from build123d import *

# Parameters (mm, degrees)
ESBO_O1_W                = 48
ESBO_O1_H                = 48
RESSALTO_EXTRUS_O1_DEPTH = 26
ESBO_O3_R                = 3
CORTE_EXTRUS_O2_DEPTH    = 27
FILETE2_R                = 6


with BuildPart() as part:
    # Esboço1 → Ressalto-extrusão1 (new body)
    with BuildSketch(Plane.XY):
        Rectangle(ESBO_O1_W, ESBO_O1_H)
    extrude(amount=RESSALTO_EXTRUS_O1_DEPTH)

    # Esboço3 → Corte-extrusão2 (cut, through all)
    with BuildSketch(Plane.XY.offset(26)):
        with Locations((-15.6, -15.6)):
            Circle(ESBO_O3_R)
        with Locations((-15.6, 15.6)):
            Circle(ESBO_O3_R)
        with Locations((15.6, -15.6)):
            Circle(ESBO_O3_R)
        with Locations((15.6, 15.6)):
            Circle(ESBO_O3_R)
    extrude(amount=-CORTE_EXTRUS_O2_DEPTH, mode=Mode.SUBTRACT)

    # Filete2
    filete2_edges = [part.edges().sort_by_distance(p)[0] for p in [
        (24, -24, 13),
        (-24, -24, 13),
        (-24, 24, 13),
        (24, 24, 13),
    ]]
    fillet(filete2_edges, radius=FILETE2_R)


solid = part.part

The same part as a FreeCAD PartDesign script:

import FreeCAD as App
import Part
import Sketcher


def edges_at(feature, points):
    """Names of the edges that pass closest to the given points."""
    edges = feature.Shape.Edges
    near = lambda p: min(range(len(edges)), key=lambda i: edges[i].distToShape(Part.Vertex(*p))[0])
    return sorted({f"Edge{near(p) + 1}" for p in points})

doc = App.newDocument("Part")
body = doc.addObject("PartDesign::Body", "Body")

# Sketch on XY plane
sketch1 = body.newObject("Sketcher::SketchObject", "Sketch")
sketch1.AttachmentSupport = (doc.getObject("XY_Plane"), [""])
sketch1.MapMode = "FlatFace"
sketch1.addGeometry(Part.LineSegment(App.Vector(-24, 24, 0), App.Vector(-24, -24, 0)), False)
sketch1.addGeometry(Part.LineSegment(App.Vector(-24, -24, 0), App.Vector(24, -24, 0)), False)
sketch1.addGeometry(Part.LineSegment(App.Vector(24, -24, 0), App.Vector(24, 24, 0)), False)
sketch1.addGeometry(Part.LineSegment(App.Vector(24, 24, 0), App.Vector(-24, 24, 0)), False)
sketch1.addConstraint(Sketcher.Constraint("Coincident", 0, 2, 1, 1))
sketch1.addConstraint(Sketcher.Constraint("Coincident", 1, 2, 2, 1))
sketch1.addConstraint(Sketcher.Constraint("Coincident", 2, 2, 3, 1))
sketch1.addConstraint(Sketcher.Constraint("Coincident", 3, 2, 0, 1))
sketch1.addConstraint(Sketcher.Constraint("Vertical", 0))
sketch1.addConstraint(Sketcher.Constraint("Horizontal", 1))
sketch1.addConstraint(Sketcher.Constraint("Vertical", 2))
sketch1.addConstraint(Sketcher.Constraint("Horizontal", 3))
sketch1.addConstraint(Sketcher.Constraint("Symmetric", 0, 2, 2, 2, -1, 1))
sketch1.addConstraint(Sketcher.Constraint("Equal", 3, 0))
sketch1.addConstraint(Sketcher.Constraint("DistanceX", 1, 1, 1, 2, 48.0))
pad1 = body.newObject("PartDesign::Pad", "Pad")
pad1.Profile = sketch1
pad1.Length = 26

# Sketch on XY plane
sketch2 = body.newObject("Sketcher::SketchObject", "Sketch001")
sketch2.AttachmentSupport = (doc.getObject("XY_Plane"), [""])
sketch2.MapMode = "FlatFace"
sketch2.AttachmentOffset = App.Placement(App.Vector(0, 0, 26), App.Rotation())
sketch2.addGeometry(Part.Circle(App.Vector(-15.6, -15.6, 0), App.Vector(0, 0, 1), 3), False)
sketch2.addGeometry(Part.Circle(App.Vector(-15.6, 15.6, 0), App.Vector(0, 0, 1), 3), False)
sketch2.addGeometry(Part.Circle(App.Vector(15.6, -15.6, 0), App.Vector(0, 0, 1), 3), False)
sketch2.addGeometry(Part.Circle(App.Vector(15.6, 15.6, 0), App.Vector(0, 0, 1), 3), False)
sketch2.addConstraint(Sketcher.Constraint("Equal", 0, 1))
sketch2.addConstraint(Sketcher.Constraint("Equal", 1, 2))
sketch2.addConstraint(Sketcher.Constraint("Equal", 2, 3))
sketch2.addConstraint(Sketcher.Constraint("Symmetric", 1, 3, 2, 3, -1, 1))
sketch2.addConstraint(Sketcher.Constraint("Symmetric", 0, 3, 3, 3, -1, 1))
sketch2.addConstraint(Sketcher.Constraint("Symmetric", 0, 3, 2, 3, -2))
sketch2.addConstraint(Sketcher.Constraint("Diameter", 0, 6.0))
sketch2.addConstraint(Sketcher.Constraint("DistanceX", 0, 3, -1, 1, 15.6))
sketch2.addConstraint(Sketcher.Constraint("DistanceY", 0, 3, -1, 1, 15.6))
pocket1 = body.newObject("PartDesign::Pocket", "Pocket")
pocket1.Profile = sketch2
pocket1.Type = "ThroughAll"
doc.recompute()

fillet = body.newObject("PartDesign::Fillet", "Fillet")
fillet.Base = (pocket1, edges_at(pocket1, [
    (24, -24, 13),
    (-24, -24, 13),
    (-24, 24, 13),
    (24, 24, 13),
]))
fillet.Radius = 6

doc.recompute()
